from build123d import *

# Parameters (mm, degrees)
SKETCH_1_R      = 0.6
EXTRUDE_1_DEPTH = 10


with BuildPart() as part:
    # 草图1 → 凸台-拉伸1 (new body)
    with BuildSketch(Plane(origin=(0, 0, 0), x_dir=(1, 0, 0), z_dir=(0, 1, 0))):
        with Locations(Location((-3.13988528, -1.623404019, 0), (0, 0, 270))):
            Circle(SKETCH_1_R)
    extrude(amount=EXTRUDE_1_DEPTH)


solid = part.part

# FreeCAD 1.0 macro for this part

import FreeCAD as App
import Part
import Sketcher

V = App.Vector

doc = App.newDocument("Part")
body = doc.addObject("PartDesign::Body", "Body")

# Sketch on XZ plane
sketch1 = doc.addObject("Sketcher::SketchObject", "Sketch")
body.addObject(sketch1)
sketch1.AttachmentSupport = (doc.XZ_Plane, [""])
sketch1.MapMode = "FlatFace"
sketch1.addGeometry(Part.Circle(V(-3.139885, 1.623404, 0), V(0, 0, 1), 0.6), False)
sketch1.addConstraint(Sketcher.Constraint("Diameter", 0, 1.2))
sketch1.addConstraint(Sketcher.Constraint("DistanceX", 0, 3, -1, 1, 3.139885))
sketch1.addConstraint(Sketcher.Constraint("DistanceY", -1, 1, 0, 3, 1.623404))
pad1 = doc.addObject("PartDesign::Pad", "Pad")
body.addObject(pad1)
pad1.Profile = sketch1
pad1.Length = 10
pad1.Reversed = True

doc.recompute()
